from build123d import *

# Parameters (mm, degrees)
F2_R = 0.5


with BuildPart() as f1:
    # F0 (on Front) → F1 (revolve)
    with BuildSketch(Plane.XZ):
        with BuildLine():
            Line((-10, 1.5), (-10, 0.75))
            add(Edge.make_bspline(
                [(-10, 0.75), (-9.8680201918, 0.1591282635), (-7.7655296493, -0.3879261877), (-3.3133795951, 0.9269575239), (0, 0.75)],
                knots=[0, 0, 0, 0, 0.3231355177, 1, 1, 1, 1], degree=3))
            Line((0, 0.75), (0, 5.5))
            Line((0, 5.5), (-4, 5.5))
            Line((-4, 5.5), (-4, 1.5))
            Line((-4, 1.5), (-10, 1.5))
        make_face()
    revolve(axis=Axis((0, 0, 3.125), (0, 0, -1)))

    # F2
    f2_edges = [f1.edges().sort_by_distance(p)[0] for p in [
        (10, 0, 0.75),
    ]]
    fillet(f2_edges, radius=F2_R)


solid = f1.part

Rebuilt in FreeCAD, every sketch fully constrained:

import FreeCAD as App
import Part
import Sketcher
Q = App.Units.Quantity


def edges_at(feature, points):
    """Names of the edges that pass closest to the given points."""
    edges = feature.Shape.Edges
    near = lambda p: min(range(len(edges)), key=lambda i: edges[i].distToShape(Part.Vertex(*p))[0])
    return sorted({f"Edge{near(p) + 1}" for p in points})

doc = App.newDocument("Part")
params = doc.addObject("Spreadsheet::Sheet", "Params")
for row, (alias, value) in enumerate([
    ("sketch1_width", "4 mm"),
    ("sketch1_height", "0.75 mm"),
    ("revolution_angle", "360 deg"),
    ("fillet_radius", "0.5 mm"),
], start=1):
    params.set(f"A{row}", alias)
    params.set(f"B{row}", "=" + value)
    params.setAlias(f"B{row}", alias)

body = doc.addObject("PartDesign::Body", "Body")

# Sketch on XZ plane
sketch1 = body.newObject("Sketcher::SketchObject", "Sketch")
sketch1.AttachmentSupport = (doc.getObject("XZ_Plane"), [""])
sketch1.MapMode = "FlatFace"
sketch1.addGeometry([
    Part.LineSegment(App.Vector(-10, 1.5, 0), App.Vector(-10, 0.75, 0)),  # 0
    Part.BSplineCurve([App.Vector(-10, 0.75, 0), App.Vector(-9.86802, 0.159128, 0), App.Vector(-7.76553, -0.387926, 0), App.Vector(-3.31338, 0.926958, 0), App.Vector(0, 0.75, 0)], [4, 1, 4], [0, 0.323135518, 1], False, 3, [1, 1, 1, 1, 1], False),  # 1
    Part.LineSegment(App.Vector(0, 0.75, 0), App.Vector(0, 5.5, 0)),  # 2
    Part.LineSegment(App.Vector(0, 5.5, 0), App.Vector(-4, 5.5, 0)),  # 3
    Part.LineSegment(App.Vector(-4, 5.5, 0), App.Vector(-4, 1.5, 0)),  # 4
    Part.LineSegment(App.Vector(-4, 1.5, 0), App.Vector(-10, 1.5, 0)),  # 5
], False)
sketch1.addConstraint([
    Sketcher.Constraint("Block", 1),
    Sketcher.Constraint("Coincident", 0, 2, 1, 1),
    Sketcher.Constraint("Coincident", 1, 2, 2, 1),
    Sketcher.Constraint("Coincident", 2, 2, 3, 1),
    Sketcher.Constraint("Coincident", 3, 2, 4, 1),
    Sketcher.Constraint("Coincident", 4, 2, 5, 1),
    Sketcher.Constraint("Coincident", 5, 2, 0, 1),
    Sketcher.Constraint("Vertical", 0),
    Sketcher.Constraint("Vertical", 2),
    Sketcher.Constraint("Horizontal", 3),
    Sketcher.Constraint("Vertical", 4),
    Sketcher.Constraint("Horizontal", 5),
    Sketcher.Constraint("Equal", 3, 4),
    Sketcher.Constraint("DistanceX", 3, 2, 3, 1, Q("4 mm")),
    Sketcher.Constraint("DistanceY", 0, 2, 0, 1, Q("0.75 mm")),
])
sketch1.setExpression("Constraints[13]", "Params.sketch1_width")
sketch1.setExpression("Constraints[14]", "Params.sketch1_height")
revolution = body.newObject("PartDesign::Revolution", "Revolution")
revolution.Profile = sketch1
revolution.ReferenceAxis = (sketch1, ["V_Axis"])
revolution.setExpression("Angle", "Params.revolution_angle")
doc.recompute()

fillet = body.newObject("PartDesign::Fillet", "Fillet")
fillet.Base = (revolution, edges_at(revolution, [(10, 0, 0.75)]))
fillet.setExpression("Radius", "Params.fillet_radius")

doc.recompute()
